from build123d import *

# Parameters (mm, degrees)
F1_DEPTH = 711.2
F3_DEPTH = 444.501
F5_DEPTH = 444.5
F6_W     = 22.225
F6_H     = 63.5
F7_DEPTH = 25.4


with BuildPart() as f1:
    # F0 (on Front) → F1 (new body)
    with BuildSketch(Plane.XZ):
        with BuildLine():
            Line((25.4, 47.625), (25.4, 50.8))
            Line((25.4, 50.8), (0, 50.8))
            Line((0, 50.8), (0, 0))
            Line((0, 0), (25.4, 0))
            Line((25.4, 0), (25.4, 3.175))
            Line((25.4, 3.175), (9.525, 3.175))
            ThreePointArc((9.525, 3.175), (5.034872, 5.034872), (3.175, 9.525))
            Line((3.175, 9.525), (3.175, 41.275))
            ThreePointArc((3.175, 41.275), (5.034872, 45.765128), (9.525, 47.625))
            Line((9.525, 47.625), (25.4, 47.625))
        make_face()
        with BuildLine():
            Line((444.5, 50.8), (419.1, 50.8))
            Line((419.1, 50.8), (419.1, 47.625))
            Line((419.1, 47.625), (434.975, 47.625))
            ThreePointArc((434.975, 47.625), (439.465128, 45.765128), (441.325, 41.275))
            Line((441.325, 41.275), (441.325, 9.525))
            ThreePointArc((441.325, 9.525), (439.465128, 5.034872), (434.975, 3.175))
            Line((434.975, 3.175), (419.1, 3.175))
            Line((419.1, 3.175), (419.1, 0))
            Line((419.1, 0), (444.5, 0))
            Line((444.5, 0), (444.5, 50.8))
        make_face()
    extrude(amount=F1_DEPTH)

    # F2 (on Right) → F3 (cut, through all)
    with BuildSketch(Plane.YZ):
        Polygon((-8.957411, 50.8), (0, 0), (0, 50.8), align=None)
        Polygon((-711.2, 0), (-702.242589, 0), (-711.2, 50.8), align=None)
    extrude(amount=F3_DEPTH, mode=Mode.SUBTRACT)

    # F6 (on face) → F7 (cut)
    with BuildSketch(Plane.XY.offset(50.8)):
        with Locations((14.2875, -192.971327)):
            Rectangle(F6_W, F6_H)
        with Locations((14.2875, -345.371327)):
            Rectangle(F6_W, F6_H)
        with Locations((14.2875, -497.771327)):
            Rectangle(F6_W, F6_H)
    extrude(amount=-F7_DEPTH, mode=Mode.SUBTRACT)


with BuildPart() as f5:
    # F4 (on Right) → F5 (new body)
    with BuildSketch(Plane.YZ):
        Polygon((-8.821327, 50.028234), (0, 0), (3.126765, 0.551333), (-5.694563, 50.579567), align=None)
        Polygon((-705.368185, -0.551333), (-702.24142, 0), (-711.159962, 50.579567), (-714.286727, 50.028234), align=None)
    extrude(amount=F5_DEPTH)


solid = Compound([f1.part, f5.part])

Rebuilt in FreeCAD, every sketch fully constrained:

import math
import FreeCAD as App
import Part
import Sketcher

V = App.Vector
Q = App.Units.Quantity

doc = App.newDocument("Part")
body = doc.addObject("PartDesign::Body", "Body")
body.AllowCompound = True

sketch1 = body.newObject("Sketcher::SketchObject", "Sketch")
sketch1.AttachmentSupport = (doc.getObject("XZ_Plane"), [""])
sketch1.MapMode = "FlatFace"
sketch1.addGeometry([
    Part.LineSegment(V(25.4, 47.6, 0), V(25.4, 50.8, 0)),
    Part.LineSegment(V(25.4, 50.8, 0), V(0, 50.8, 0)),
    Part.LineSegment(V(0, 50.8, 0), V(0, 0, 0)),
    Part.LineSegment(V(0, 0, 0), V(25.4, 0, 0)),
    Part.LineSegment(V(25.4, 0, 0), V(25.4, 3.2, 0)),
    Part.LineSegment(V(25.4, 3.2, 0), V(9.5, 3.2, 0)),
    Part.ArcOfCircle(Part.Circle(V(9.5, 9.5, 0), V(0, 0, 1), 6.4), math.radians(-180), math.radians(-90)),
    Part.LineSegment(V(3.2, 9.5, 0), V(3.2, 41.3, 0)),
    Part.ArcOfCircle(Part.Circle(V(9.5, 41.3, 0), V(0, 0, 1), 6.4), math.radians(90), math.radians(180)),
    Part.LineSegment(V(9.5, 47.6, 0), V(25.4, 47.6, 0)),
    Part.LineSegment(V(444.5, 50.8, 0), V(419.1, 50.8, 0)),
    Part.LineSegment(V(419.1, 50.8, 0), V(419.1, 47.6, 0)),
    Part.LineSegment(V(419.1, 47.6, 0), V(435, 47.6, 0)),
    Part.ArcOfCircle(Part.Circle(V(435, 41.3, 0), V(0, 0, 1), 6.4), math.radians(0), math.radians(90)),
    Part.LineSegment(V(441.3, 41.3, 0), V(441.3, 9.5, 0)),
    Part.ArcOfCircle(Part.Circle(V(435, 9.5, 0), V(0, 0, 1), 6.4), math.radians(-90), math.radians(0)),
    Part.LineSegment(V(435, 3.2, 0), V(419.1, 3.2, 0)),
    Part.LineSegment(V(419.1, 3.2, 0), V(419.1, 0, 0)),
    Part.LineSegment(V(419.1, 0, 0), V(444.5, 0, 0)),
    Part.LineSegment(V(444.5, 0, 0), V(444.5, 50.8, 0)),
], False)
sketch1.addConstraint([
    Sketcher.Constraint("Coincident", 0, 2, 1, 1),
    Sketcher.Constraint("Coincident", 1, 2, 2, 1),
    Sketcher.Constraint("Coincident", 2, 2, 3, 1),
    Sketcher.Constraint("Coincident", 3, 2, 4, 1),
    Sketcher.Constraint("Coincident", 4, 2, 5, 1),
    Sketcher.Constraint("Tangent", 5, 2, 6, 2),
    Sketcher.Constraint("Tangent", 6, 1, 7, 1),
    Sketcher.Constraint("Tangent", 7, 2, 8, 2),
    Sketcher.Constraint("Tangent", 8, 1, 9, 1),
    Sketcher.Constraint("Coincident", 9, 2, 0, 1),
    Sketcher.Constraint("Coincident", 10, 2, 11, 1),
    Sketcher.Constraint("Coincident", 11, 2, 12, 1),
    Sketcher.Constraint("Tangent", 12, 2, 13, 2),
    Sketcher.Constraint("Tangent", 13, 1, 14, 1),
    Sketcher.Constraint("Tangent", 14, 2, 15, 2),
    Sketcher.Constraint("Tangent", 15, 1, 16, 1),
    Sketcher.Constraint("Coincident", 16, 2, 17, 1),
    Sketcher.Constraint("Coincident", 17, 2, 18, 1),
    Sketcher.Constraint("Coincident", 18, 2, 19, 1),
    Sketcher.Constraint("Coincident", 19, 2, 10, 1),
    Sketcher.Constraint("Vertical", 0),
    Sketcher.Constraint("Horizontal", 1),
    Sketcher.Constraint("Vertical", 2),
    Sketcher.Constraint("Horizontal", 3),
    Sketcher.Constraint("Vertical", 4),
    Sketcher.Constraint("Horizontal", 5),
    Sketcher.Constraint("Vertical", 7),
    Sketcher.Constraint("Horizontal", 9),
    Sketcher.Constraint("Horizontal", 10),
    Sketcher.Constraint("Vertical", 11),
    Sketcher.Constraint("Horizontal", 12),
    Sketcher.Constraint("Vertical", 14),
    Sketcher.Constraint("Horizontal", 16),
    Sketcher.Constraint("Vertical", 17),
    Sketcher.Constraint("Horizontal", 18),
    Sketcher.Constraint("Vertical", 19),
    Sketcher.Constraint("Coincident", 2, 2, -1, 1),
    Sketcher.Constraint("Equal", 6, 8),
    Sketcher.Constraint("Equal", 8, 13),
    Sketcher.Constraint("Equal", 13, 15),
    Sketcher.Constraint("PointOnObject", 17, 2, -1),
    Sketcher.Constraint("Horizontal", 8, 3, 13, 3),
    Sketcher.Constraint("Horizontal", 6, 3, 15, 3),
    Sketcher.Constraint("Horizontal", 1, 2, 10, 2),
    Sketcher.Constraint("Vertical", 0, 2, 3, 2),
    Sketcher.Constraint("Vertical", 11, 2, 16, 2),
    Sketcher.Constraint("Equal", 3, 10),
    Sketcher.Constraint("Equal", 9, 12),
    Sketcher.Constraint("Equal", 0, 4),
    Sketcher.Constraint("DistanceX", 1, 2, 1, 1, Q("1 in")),
    Sketcher.Constraint("DistanceY", 2, 2, 2, 1, Q("2 in")),
    Sketcher.Constraint("Radius", 6, Q("0.25 in")),
    Sketcher.Constraint("DistanceY", 7, 1, 7, 2, Q("1.25 in")),
    Sketcher.Constraint("DistanceX", -1, 1, 10, 2, Q("16.5 in")),
    Sketcher.Constraint("DistanceX", 5, 2, 5, 1, Q("0.625 in")),
])
pad1 = body.newObject("PartDesign::Pad", "Pad")
pad1.Profile = sketch1
pad1.Length = Q("28 in")

sketch2 = body.newObject("Sketcher::SketchObject", "Sketch001")
sketch2.AttachmentSupport = (doc.getObject("YZ_Plane"), [""])
sketch2.MapMode = "FlatFace"
sketch2.addGeometry([
    Part.LineSegment(V(-9, 51, 0), V(0, 0, 0)),
    Part.LineSegment(V(0, 0, 0), V(0, 51, 0)),
    Part.LineSegment(V(0, 51, 0), V(-9, 51, 0)),
    Part.LineSegment(V(-711, 0, 0), V(-702, 0, 0)),
    Part.LineSegment(V(-702, 0, 0), V(-711, 51, 0)),
    Part.LineSegment(V(-711, 51, 0), V(-711, 0, 0)),
], False)
sketch2.addConstraint([
    Sketcher.Constraint("Coincident", 0, 2, 1, 1),
    Sketcher.Constraint("Coincident", 1, 2, 2, 1),
    Sketcher.Constraint("Coincident", 2, 2, 0, 1),
    Sketcher.Constraint("Coincident", 3, 2, 4, 1),
    Sketcher.Constraint("Coincident", 4, 2, 5, 1),
    Sketcher.Constraint("Coincident", 5, 2, 3, 1),
    Sketcher.Constraint("Vertical", 1),
    Sketcher.Constraint("Horizontal", 2),
    Sketcher.Constraint("Horizontal", 3),
    Sketcher.Constraint("Vertical", 5),
    Sketcher.Constraint("Coincident", 0, 2, -1, 1),
    Sketcher.Constraint("PointOnObject", 3, 2, -1),
    Sketcher.Constraint("Parallel", 0, 4),
    Sketcher.Constraint("Horizontal", 2, 2, 4, 2),
    Sketcher.Constraint("DistanceY", 1, 1, 1, 2, Q("2 in")),
    Sketcher.Constraint("DistanceX", 4, 2, -1, 1, Q("28 in")),
    Sketcher.Constraint("Angle", 0, Q("-80 deg")),
])
pocket1 = body.newObject("PartDesign::Pocket", "Pocket")
pocket1.Profile = sketch2
pocket1.Type = "ThroughAll"
pocket1.Reversed = True

sketch3 = body.newObject("Sketcher::SketchObject", "Sketch002")
sketch3.AttachmentSupport = (doc.getObject("XY_Plane"), [""])
sketch3.MapMode = "FlatFace"
sketch3.AttachmentOffset = App.Placement(V(0, 0, 2 * 25.4), App.Rotation())
sketch3.addGeometry([
    Part.LineSegment(V(3, -161, 0), V(3, -225, 0)),
    Part.LineSegment(V(3, -225, 0), V(25, -225, 0)),
    Part.LineSegment(V(25, -225, 0), V(25, -161, 0)),
    Part.LineSegment(V(25, -161, 0), V(3, -161, 0)),
    Part.LineSegment(V(3, -314, 0), V(3, -377, 0)),
    Part.LineSegment(V(3, -377, 0), V(25, -377, 0)),
    Part.LineSegment(V(25, -377, 0), V(25, -314, 0)),
    Part.LineSegment(V(25, -314, 0), V(3, -314, 0)),
    Part.LineSegment(V(3, -466, 0), V(3, -530, 0)),
    Part.LineSegment(V(3, -530, 0), V(25, -530, 0)),
    Part.LineSegment(V(25, -530, 0), V(25, -466, 0)),
    Part.LineSegment(V(25, -466, 0), V(3, -466, 0)),
], False)
sketch3.addConstraint([
    Sketcher.Constraint("Coincident", 0, 2, 1, 1),
    Sketcher.Constraint("Coincident", 1, 2, 2, 1),
    Sketcher.Constraint("Coincident", 2, 2, 3, 1),
    Sketcher.Constraint("Coincident", 3, 2, 0, 1),
    Sketcher.Constraint("Coincident", 4, 2, 5, 1),
    Sketcher.Constraint("Coincident", 5, 2, 6, 1),
    Sketcher.Constraint("Coincident", 6, 2, 7, 1),
    Sketcher.Constraint("Coincident", 7, 2, 4, 1),
    Sketcher.Constraint("Coincident", 8, 2, 9, 1),
    Sketcher.Constraint("Coincident", 9, 2, 10, 1),
    Sketcher.Constraint("Coincident", 10, 2, 11, 1),
    Sketcher.Constraint("Coincident", 11, 2, 8, 1),
    Sketcher.Constraint("Vertical", 0),
    Sketcher.Constraint("Horizontal", 1),
    Sketcher.Constraint("Vertical", 2),
    Sketcher.Constraint("Horizontal", 3),
    Sketcher.Constraint("Vertical", 4),
    Sketcher.Constraint("Horizontal", 5),
    Sketcher.Constraint("Vertical", 6),
    Sketcher.Constraint("Horizontal", 7),
    Sketcher.Constraint("Vertical", 8),
    Sketcher.Constraint("Horizontal", 9),
    Sketcher.Constraint("Vertical", 10),
    Sketcher.Constraint("Horizontal", 11),
    Sketcher.Constraint("Vertical", 3, 2, 4, 2),
    Sketcher.Constraint("Vertical", 2, 2, 5, 2),
    Sketcher.Constraint("Vertical", 7, 2, 8, 2),
    Sketcher.Constraint("Vertical", 6, 2, 9, 2),
    Sketcher.Constraint("Equal", 2, 4),
    Sketcher.Constraint("Equal", 6, 8),
    Sketcher.Constraint("DistanceY", 0, 2, 0, 1, Q("2.5 in")),
    Sketcher.Constraint("DistanceX", -1, 1, 1, 2, Q("1 in")),
    Sketcher.Constraint("DistanceY", 4, 2, 0, 2, Q("6 in")),
    Sketcher.Constraint("DistanceY", 8, 2, 4, 2, Q("6 in")),
    Sketcher.Constraint("DistanceX", 1, 1, 1, 2, Q("0.875 in")),
    Sketcher.Constraint("DistanceY", 0, 2, -1, 1, 224.721327),
])
pocket2 = body.newObject("PartDesign::Pocket", "Pocket001")
pocket2.Profile = sketch3
pocket2.Length = Q("1 in")
body2 = doc.addObject("PartDesign::Body", "Body001")
body2.AllowCompound = True

sketch4 = body2.newObject("Sketcher::SketchObject", "Sketch003")
sketch4.AttachmentSupport = (doc.getObject("YZ_Plane001"), [""])
sketch4.MapMode = "FlatFace"
sketch4.addGeometry([
    Part.LineSegment(V(-8.8, 50, 0), V(0, 0, 0)),
    Part.LineSegment(V(0, 0, 0), V(3.1, 0.6, 0)),
    Part.LineSegment(V(3.1, 0.6, 0), V(-5.7, 50.6, 0)),
    Part.LineSegment(V(-5.7, 50.6, 0), V(-8.8, 50, 0)),
    Part.LineSegment(V(-705.4, -0.6, 0), V(-702.2, 0, 0)),
    Part.LineSegment(V(-702.2, 0, 0), V(-711.2, 50.6, 0)),
    Part.LineSegment(V(-711.2, 50.6, 0), V(-714.3, 50, 0)),
    Part.LineSegment(V(-714.3, 50, 0), V(-705.4, -0.6, 0)),
], False)
sketch4.addConstraint([
    Sketcher.Constraint("Coincident", 0, 2, 1, 1),
    Sketcher.Constraint("Coincident", 1, 2, 2, 1),
    Sketcher.Constraint("Coincident", 2, 2, 3, 1),
    Sketcher.Constraint("Coincident", 3, 2, 0, 1),
    Sketcher.Constraint("Coincident", 4, 2, 5, 1),
    Sketcher.Constraint("Coincident", 5, 2, 6, 1),
    Sketcher.Constraint("Coincident", 6, 2, 7, 1),
    Sketcher.Constraint("Coincident", 7, 2, 4, 1),
    Sketcher.Constraint("Coincident", 0, 2, -1, 1),
    Sketcher.Constraint("PointOnObject", 4, 2, -1),
    Sketcher.Constraint("Perpendicular", 0, 1),
    Sketcher.Constraint("Perpendicular", 1, 2),
    Sketcher.Constraint("Perpendicular", 2, 3),
    Sketcher.Constraint("Parallel", 3, 4),
    Sketcher.Constraint("Perpendicular", 4, 5),
    Sketcher.Constraint("Perpendicular", 5, 6),
    Sketcher.Constraint("Perpendicular", 6, 7),
    Sketcher.Constraint("Horizontal", 2, 2, 5, 2),
    Sketcher.Constraint("Horizontal", 3, 2, 6, 2),
    Sketcher.Constraint("Distance", 0, Q("2 in")),
    Sketcher.Constraint("Angle", 0, Q("-80.000001 deg")),
    Sketcher.Constraint("Distance", 1, Q("0.125 in")),
    Sketcher.Constraint("DistanceX", 4, 2, -1, 1, Q("27.6473 in")),
])
pad2 = body2.newObject("PartDesign::Pad", "Pad001")
pad2.Profile = sketch4
pad2.Length = Q("17.5 in")

doc.recompute()
